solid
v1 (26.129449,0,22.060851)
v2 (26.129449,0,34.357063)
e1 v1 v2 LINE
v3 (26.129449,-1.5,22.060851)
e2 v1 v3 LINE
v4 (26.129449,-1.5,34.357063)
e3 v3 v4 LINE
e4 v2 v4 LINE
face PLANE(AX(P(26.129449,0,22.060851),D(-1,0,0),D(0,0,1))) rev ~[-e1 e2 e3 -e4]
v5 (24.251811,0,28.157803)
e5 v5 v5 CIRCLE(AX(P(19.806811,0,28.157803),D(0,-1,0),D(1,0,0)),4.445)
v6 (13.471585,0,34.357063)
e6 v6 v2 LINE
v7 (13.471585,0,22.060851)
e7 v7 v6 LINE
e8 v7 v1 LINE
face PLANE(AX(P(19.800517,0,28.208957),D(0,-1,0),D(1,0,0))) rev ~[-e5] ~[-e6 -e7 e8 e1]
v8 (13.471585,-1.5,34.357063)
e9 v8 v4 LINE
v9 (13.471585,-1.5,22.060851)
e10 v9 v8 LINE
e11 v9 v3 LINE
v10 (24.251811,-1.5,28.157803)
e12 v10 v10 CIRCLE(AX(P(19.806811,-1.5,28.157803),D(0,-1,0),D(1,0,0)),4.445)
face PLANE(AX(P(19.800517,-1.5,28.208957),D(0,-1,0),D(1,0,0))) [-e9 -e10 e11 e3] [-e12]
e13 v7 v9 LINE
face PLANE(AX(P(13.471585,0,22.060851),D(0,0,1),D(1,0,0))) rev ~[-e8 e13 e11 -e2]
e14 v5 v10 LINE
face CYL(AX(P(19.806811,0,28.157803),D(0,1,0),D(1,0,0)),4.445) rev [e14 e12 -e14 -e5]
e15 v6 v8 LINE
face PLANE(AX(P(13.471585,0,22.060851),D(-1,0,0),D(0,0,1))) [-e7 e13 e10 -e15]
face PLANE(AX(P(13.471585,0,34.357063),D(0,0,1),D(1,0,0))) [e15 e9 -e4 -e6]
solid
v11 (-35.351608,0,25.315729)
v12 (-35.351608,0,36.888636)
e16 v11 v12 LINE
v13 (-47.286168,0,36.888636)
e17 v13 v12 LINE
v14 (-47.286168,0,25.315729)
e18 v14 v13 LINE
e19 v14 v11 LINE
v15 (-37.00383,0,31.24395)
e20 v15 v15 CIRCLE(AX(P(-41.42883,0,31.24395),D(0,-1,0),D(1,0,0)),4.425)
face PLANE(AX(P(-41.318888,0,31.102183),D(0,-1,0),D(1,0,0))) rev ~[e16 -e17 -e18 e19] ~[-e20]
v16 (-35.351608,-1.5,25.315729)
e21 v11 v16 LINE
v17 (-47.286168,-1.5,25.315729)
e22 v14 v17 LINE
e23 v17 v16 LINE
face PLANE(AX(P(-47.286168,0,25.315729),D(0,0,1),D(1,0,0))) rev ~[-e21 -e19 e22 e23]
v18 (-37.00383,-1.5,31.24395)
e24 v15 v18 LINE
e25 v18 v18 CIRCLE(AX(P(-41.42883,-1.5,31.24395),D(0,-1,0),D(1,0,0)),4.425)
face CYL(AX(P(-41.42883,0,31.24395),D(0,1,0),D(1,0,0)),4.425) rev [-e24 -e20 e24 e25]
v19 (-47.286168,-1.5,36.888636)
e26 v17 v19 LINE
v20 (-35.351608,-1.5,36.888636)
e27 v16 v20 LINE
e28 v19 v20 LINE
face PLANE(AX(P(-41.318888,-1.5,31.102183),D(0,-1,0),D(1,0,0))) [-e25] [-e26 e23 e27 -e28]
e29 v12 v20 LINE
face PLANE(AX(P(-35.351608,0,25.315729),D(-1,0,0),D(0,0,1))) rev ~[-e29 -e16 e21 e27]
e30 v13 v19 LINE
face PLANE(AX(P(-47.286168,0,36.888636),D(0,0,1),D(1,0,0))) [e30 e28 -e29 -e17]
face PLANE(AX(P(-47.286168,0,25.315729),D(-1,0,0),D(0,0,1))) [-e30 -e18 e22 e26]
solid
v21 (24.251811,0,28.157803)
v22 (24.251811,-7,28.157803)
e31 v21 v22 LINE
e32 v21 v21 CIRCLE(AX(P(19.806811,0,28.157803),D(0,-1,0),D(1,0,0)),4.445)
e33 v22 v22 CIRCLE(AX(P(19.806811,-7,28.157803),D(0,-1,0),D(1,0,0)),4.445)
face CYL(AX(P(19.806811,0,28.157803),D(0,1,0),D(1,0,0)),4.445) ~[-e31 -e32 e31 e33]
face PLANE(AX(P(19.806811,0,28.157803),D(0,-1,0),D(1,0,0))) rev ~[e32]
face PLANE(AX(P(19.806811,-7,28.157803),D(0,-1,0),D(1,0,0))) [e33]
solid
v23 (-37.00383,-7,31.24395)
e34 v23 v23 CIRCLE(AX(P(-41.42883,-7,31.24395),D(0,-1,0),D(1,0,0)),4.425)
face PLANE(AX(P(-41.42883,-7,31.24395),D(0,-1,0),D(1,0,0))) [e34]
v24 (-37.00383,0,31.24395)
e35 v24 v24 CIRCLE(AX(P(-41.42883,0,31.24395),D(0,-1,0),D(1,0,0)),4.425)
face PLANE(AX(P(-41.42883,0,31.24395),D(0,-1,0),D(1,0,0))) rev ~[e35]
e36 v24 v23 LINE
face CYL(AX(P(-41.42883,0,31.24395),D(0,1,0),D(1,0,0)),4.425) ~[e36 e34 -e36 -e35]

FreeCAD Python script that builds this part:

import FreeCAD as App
import Part
import Sketcher
from FreeCAD import Vector

doc = App.newDocument("Part")
params = doc.addObject("Spreadsheet::Sheet", "Params")
for row, (alias, value) in enumerate([
    ("sketch1_diameter", "8.85 mm"),
    ("sketch1_diameter2", "8.89 mm"),
    ("pad1_length", "7 mm"),
    ("sketch2_diameter", "8.85 mm"),
    ("sketch2_diameter2", "8.89 mm"),
    ("pad2_length", "1.5 mm"),
], start=1):
    params.set(f"A{row}", alias)
    params.set(f"B{row}", "=" + value)
    params.setAlias(f"B{row}", alias)

body = doc.addObject("PartDesign::Body", "Body")
body.AllowCompound = True

# Sketch on XZ plane
sketch1 = body.newObject("Sketcher::SketchObject", "Sketch")
sketch1.AttachmentSupport = (doc.getObject("XZ_Plane"), [""])
sketch1.MapMode = "FlatFace"
sketch1.addGeometry([
    Part.Circle(Vector(-41.42883, 31.24395, 0), Vector(0, 0, 1), 4.425),
    Part.Circle(Vector(19.806811, 28.157803, 0), Vector(0, 0, 1), 4.445),
], False)
sketch1.addConstraint([
    Sketcher.Constraint("Diameter", 0, 8.85),
    Sketcher.Constraint("Diameter", 1, 8.89),
    Sketcher.Constraint("DistanceX", 0, 3, -1, 1, 41.42883),
    Sketcher.Constraint("DistanceY", -1, 1, 0, 3, 31.24395),
    Sketcher.Constraint("DistanceX", -1, 1, 1, 3, 19.806811),
    Sketcher.Constraint("DistanceY", -1, 1, 1, 3, 28.157803),
])
sketch1.setExpression("Constraints[0]", "Params.sketch1_diameter")
sketch1.setExpression("Constraints[1]", "Params.sketch1_diameter2")
pad1 = body.newObject("PartDesign::Pad", "Pad")
pad1.Profile = sketch1
pad1.setExpression("Length", "Params.pad1_length")
body2 = doc.addObject("PartDesign::Body", "Body001")
body2.AllowCompound = True

# Sketch on XZ plane
sketch2 = body2.newObject("Sketcher::SketchObject", "Sketch001")
sketch2.AttachmentSupport = (doc.getObject("XZ_Plane001"), [""])
sketch2.MapMode = "FlatFace"
sketch2.addGeometry([
    Part.LineSegment(Vector(-47.286168, 36.888636, 0), Vector(-47.286168, 25.315729, 0)),  # 0
    Part.LineSegment(Vector(-47.286168, 25.315729, 0), Vector(-35.351608, 25.315729, 0)),  # 1
    Part.LineSegment(Vector(-35.351608, 25.315729, 0), Vector(-35.351608, 36.888636, 0)),  # 2
    Part.LineSegment(Vector(-35.351608, 36.888636, 0), Vector(-47.286168, 36.888636, 0)),  # 3
    Part.Circle(Vector(-41.42883, 31.24395, 0), Vector(0, 0, 1), 4.425),  # 4
    Part.LineSegment(Vector(13.471585, 34.357063, 0), Vector(13.471585, 22.060851, 0)),  # 5
    Part.LineSegment(Vector(13.471585, 22.060851, 0), Vector(26.129449, 22.060851, 0)),  # 6
    Part.LineSegment(Vector(26.129449, 22.060851, 0), Vector(26.129449, 34.357063, 0)),  # 7
    Part.LineSegment(Vector(26.129449, 34.357063, 0), Vector(13.471585, 34.357063, 0)),  # 8
    Part.Circle(Vector(19.806811, 28.157803, 0), Vector(0, 0, 1), 4.445),  # 9
], False)
sketch2.addConstraint([
    Sketcher.Constraint("Coincident", 0, 2, 1, 1),
    Sketcher.Constraint("Coincident", 1, 2, 2, 1),
    Sketcher.Constraint("Coincident", 2, 2, 3, 1),
    Sketcher.Constraint("Coincident", 3, 2, 0, 1),
    Sketcher.Constraint("Coincident", 5, 2, 6, 1),
    Sketcher.Constraint("Coincident", 6, 2, 7, 1),
    Sketcher.Constraint("Coincident", 7, 2, 8, 1),
    Sketcher.Constraint("Coincident", 8, 2, 5, 1),
    Sketcher.Constraint("Vertical", 0),
    Sketcher.Constraint("Horizontal", 1),
    Sketcher.Constraint("Vertical", 2),
    Sketcher.Constraint("Horizontal", 3),
    Sketcher.Constraint("Vertical", 5),
    Sketcher.Constraint("Horizontal", 6),
    Sketcher.Constraint("Vertical", 7),
    Sketcher.Constraint("Horizontal", 8),
    Sketcher.Constraint("Diameter", 4, 8.85),
    Sketcher.Constraint("Diameter", 9, 8.89),
    Sketcher.Constraint("DistanceX", 1, 1, 1, 2, 11.93456),
    Sketcher.Constraint("DistanceY", 5, 2, 5, 1, 12.296212),
    Sketcher.Constraint("DistanceY", 5, 2, 4, 3, 9.183099),
    Sketcher.Constraint("DistanceX", 6, 1, 6, 2, 12.657864),
    Sketcher.Constraint("DistanceY", 0, 2, 0, 1, 11.572907),
    Sketcher.Constraint("DistanceX", 4, 3, -1, 1, 41.42883),
    Sketcher.Constraint("DistanceY", -1, 1, 4, 3, 31.24395),
    Sketcher.Constraint("DistanceX", -1, 1, 9, 3, 19.806811),
    Sketcher.Constraint("DistanceX", 0, 2, -1, 1, 47.286168),
    Sketcher.Constraint("DistanceY", -1, 1, 0, 2, 25.315729),
    Sketcher.Constraint("DistanceX", -1, 1, 6, 2, 26.129449),
    Sketcher.Constraint("DistanceY", 9, 3, 7, 2, 6.19926),
])
sketch2.setExpression("Constraints[16]", "Params.sketch2_diameter")
sketch2.setExpression("Constraints[17]", "Params.sketch2_diameter2")
pad2 = body2.newObject("PartDesign::Pad", "Pad001")
pad2.Profile = sketch2
pad2.setExpression("Length", "Params.pad2_length")

doc.recompute()
